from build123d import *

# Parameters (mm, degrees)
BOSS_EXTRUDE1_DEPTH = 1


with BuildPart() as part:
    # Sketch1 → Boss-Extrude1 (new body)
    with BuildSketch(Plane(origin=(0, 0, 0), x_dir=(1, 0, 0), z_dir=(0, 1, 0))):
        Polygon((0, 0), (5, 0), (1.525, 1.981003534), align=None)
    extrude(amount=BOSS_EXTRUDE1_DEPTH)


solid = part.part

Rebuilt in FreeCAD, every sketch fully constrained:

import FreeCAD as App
import Part
import Sketcher
from FreeCAD import Vector
Q = App.Units.Quantity


def add_polygon(sketch, points):
    """Adds a closed chain of lines whose ends are joined by coincident constraints."""
    first, n = sketch.GeometryCount, len(points)
    for a, b in zip(points, points[1:] + points[:1]):
        sketch.addGeometry(Part.LineSegment(App.Vector(*a, 0), App.Vector(*b, 0)), False)
    for i in range(n):
        sketch.addConstraint(Sketcher.Constraint("Coincident", first + i, 2, first + (i + 1) % n, 1))

doc = App.newDocument("Part")
body = doc.addObject("PartDesign::Body", "Body")

# Sketch on XZ plane
sketch1 = doc.addObject("Sketcher::SketchObject", "Sketch")
body.addObject(sketch1)
sketch1.AttachmentSupport = (doc.XZ_Plane, [""])
sketch1.MapMode = "FlatFace"
add_polygon(sketch1, [(0, 0), (5, 0), (1.525, -1.981004)])  # lines 0-2
sketch1.addConstraint([
    Sketcher.Constraint("Horizontal", 0),
    Sketcher.Constraint("Coincident", 2, 2, -1, 1),
    Sketcher.Constraint("DistanceX", 0, 1, 0, 2, Q("5 mm")),
    Sketcher.Constraint("Distance", 1, Q("4 mm")),
    Sketcher.Constraint("Distance", 2, Q("2.5 mm")),
])
pad1 = doc.addObject("PartDesign::Pad", "Pad")
body.addObject(pad1)
pad1.Profile = sketch1
pad1.Length = 1
pad1.Reversed = True

doc.recompute()
